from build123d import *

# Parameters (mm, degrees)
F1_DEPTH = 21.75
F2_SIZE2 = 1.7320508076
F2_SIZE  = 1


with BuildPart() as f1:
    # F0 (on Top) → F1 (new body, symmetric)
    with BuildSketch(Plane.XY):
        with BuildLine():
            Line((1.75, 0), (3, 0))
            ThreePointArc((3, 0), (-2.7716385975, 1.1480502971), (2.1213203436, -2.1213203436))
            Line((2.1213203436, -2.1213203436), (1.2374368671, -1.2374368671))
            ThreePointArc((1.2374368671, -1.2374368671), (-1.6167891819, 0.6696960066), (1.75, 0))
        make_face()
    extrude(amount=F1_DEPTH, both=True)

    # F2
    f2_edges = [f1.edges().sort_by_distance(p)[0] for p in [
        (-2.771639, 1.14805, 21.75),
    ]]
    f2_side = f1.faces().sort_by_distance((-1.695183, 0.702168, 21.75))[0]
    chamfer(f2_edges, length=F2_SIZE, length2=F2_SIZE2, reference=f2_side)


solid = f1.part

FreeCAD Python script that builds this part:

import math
import FreeCAD as App
import Part
import Sketcher

V = App.Vector
Q = App.Units.Quantity


def edges_at(feature, points):
    """Names of the edges that pass closest to the given points."""
    edges = feature.Shape.Edges
    near = lambda p: min(range(len(edges)), key=lambda i: edges[i].distToShape(Part.Vertex(*p))[0])
    return sorted({f"Edge{near(p) + 1}" for p in points})

doc = App.newDocument("Part")
body = doc.addObject("PartDesign::Body", "Body")

# Sketch on XY plane
sketch1 = body.newObject("Sketcher::SketchObject", "Sketch")
sketch1.AttachmentSupport = (doc.getObject("XY_Plane"), [""])
sketch1.MapMode = "FlatFace"
sketch1.addGeometry(Part.LineSegment(V(1.8, 0, 0), V(3, 0, 0)), False)
sketch1.addGeometry(Part.ArcOfCircle(Part.Circle(V(0, 0, 0), V(0, 0, 1), 3), math.radians(0), math.radians(315)), False)
sketch1.addGeometry(Part.LineSegment(V(2.1, -2.1, 0), V(1.2, -1.2, 0)), False)
sketch1.addGeometry(Part.ArcOfCircle(Part.Circle(V(0, 0, 0), V(0, 0, 1), 1.8), math.radians(0), math.radians(315)), False)
sketch1.addConstraint(Sketcher.Constraint("Coincident", 0, 2, 1, 1))
sketch1.addConstraint(Sketcher.Constraint("Coincident", 1, 2, 2, 1))
sketch1.addConstraint(Sketcher.Constraint("Coincident", 2, 2, 3, 2))
sketch1.addConstraint(Sketcher.Constraint("Coincident", 3, 1, 0, 1))
sketch1.addConstraint(Sketcher.Constraint("Horizontal", 0))
sketch1.addConstraint(Sketcher.Constraint("Coincident", 1, 3, -1, 1))
sketch1.addConstraint(Sketcher.Constraint("Coincident", 3, 3, -1, 1))
sketch1.addConstraint(Sketcher.Constraint("PointOnObject", 0, 2, -1))
sketch1.addConstraint(Sketcher.Constraint("Radius", 1, 3.0))
sketch1.addConstraint(Sketcher.Constraint("Angle", 2, Q("135 deg")))
sketch1.addConstraint(Sketcher.Constraint("Radius", 3, 1.75))
sketch1.addConstraint(Sketcher.Constraint("DistanceX", -1, 1, 1, 2, 2.12132))
pad1 = body.newObject("PartDesign::Pad", "Pad")
pad1.Profile = sketch1
pad1.Length = 43.5
pad1.Midplane = True
doc.recompute()

chamfer = body.newObject("PartDesign::Chamfer", "Chamfer")
chamfer.Base = (pad1, edges_at(pad1, [(-2.772, 1.148, 21.75)]))
chamfer.ChamferType = "Two distances"
chamfer.Size = 1
chamfer.Size2 = 1.732051
chamfer.FlipDirection = True

doc.recompute()
